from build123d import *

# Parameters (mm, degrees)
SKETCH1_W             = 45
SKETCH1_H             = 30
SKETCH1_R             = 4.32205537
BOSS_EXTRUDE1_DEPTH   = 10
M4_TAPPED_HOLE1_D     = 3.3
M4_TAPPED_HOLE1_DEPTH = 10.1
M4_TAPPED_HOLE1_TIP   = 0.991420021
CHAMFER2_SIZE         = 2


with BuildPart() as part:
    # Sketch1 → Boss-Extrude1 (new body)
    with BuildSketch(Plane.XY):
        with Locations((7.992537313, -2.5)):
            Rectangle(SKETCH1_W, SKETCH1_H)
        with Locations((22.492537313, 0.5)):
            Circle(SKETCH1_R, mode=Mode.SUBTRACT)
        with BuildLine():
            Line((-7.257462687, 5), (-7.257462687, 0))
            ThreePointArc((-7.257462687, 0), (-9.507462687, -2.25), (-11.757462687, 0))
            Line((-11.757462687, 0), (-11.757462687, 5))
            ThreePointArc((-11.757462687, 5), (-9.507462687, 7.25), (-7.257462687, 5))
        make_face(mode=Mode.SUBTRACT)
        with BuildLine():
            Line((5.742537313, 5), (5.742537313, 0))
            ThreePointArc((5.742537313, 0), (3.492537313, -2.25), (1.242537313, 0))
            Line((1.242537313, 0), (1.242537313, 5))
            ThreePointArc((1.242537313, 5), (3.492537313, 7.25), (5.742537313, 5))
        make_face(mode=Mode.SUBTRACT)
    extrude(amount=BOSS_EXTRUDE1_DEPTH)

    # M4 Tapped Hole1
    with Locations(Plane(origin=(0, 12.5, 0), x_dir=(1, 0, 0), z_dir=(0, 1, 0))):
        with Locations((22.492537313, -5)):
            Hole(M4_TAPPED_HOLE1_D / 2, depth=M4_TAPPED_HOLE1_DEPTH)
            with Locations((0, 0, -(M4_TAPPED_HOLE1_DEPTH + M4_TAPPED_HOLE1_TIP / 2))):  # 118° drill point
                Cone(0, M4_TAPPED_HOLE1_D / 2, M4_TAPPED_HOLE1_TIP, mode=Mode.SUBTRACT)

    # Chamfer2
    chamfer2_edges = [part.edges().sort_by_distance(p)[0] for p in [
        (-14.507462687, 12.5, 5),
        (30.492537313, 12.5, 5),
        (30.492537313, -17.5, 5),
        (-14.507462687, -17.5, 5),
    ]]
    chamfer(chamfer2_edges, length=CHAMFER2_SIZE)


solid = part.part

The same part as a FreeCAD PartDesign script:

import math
import FreeCAD as App
import Part
import Sketcher


def edges_at(feature, points):
    """Names of the edges that pass closest to the given points."""
    edges = feature.Shape.Edges
    near = lambda p: min(range(len(edges)), key=lambda i: edges[i].distToShape(Part.Vertex(*p))[0])
    return sorted({f"Edge{near(p) + 1}" for p in points})


def add_polygon(sketch, points):
    """Adds a closed chain of lines whose ends are joined by coincident constraints."""
    first, n = sketch.GeometryCount, len(points)
    for a, b in zip(points, points[1:] + points[:1]):
        sketch.addGeometry(Part.LineSegment(App.Vector(*a, 0), App.Vector(*b, 0)), False)
    for i in range(n):
        sketch.addConstraint(Sketcher.Constraint("Coincident", first + i, 2, first + (i + 1) % n, 1))

doc = App.newDocument("Part")
body = doc.addObject("PartDesign::Body", "Body")

# Sketch on XY plane
sketch1 = body.newObject("Sketcher::SketchObject", "Sketch")
sketch1.AttachmentSupport = (doc.getObject("XY_Plane"), [""])
sketch1.MapMode = "FlatFace"
add_polygon(sketch1, [(-14.5, 12.5), (-14.5, -17.5), (30.5, -17.5), (30.5, 12.5)])  # lines 0-3
sketch1.addGeometry(Part.Circle(App.Vector(22.5, 0.5, 0), App.Vector(0, 0, 1), 4.3), False)  # 4
sketch1.addGeometry(Part.ArcOfCircle(Part.Circle(App.Vector(-9.5, 5, 0), App.Vector(0, 0, 1), 2.2), math.radians(0), math.radians(180)), False)  # 5
sketch1.addGeometry(Part.LineSegment(App.Vector(-7.3, 5, 0), App.Vector(-7.3, 0, 0)), False)  # 6
sketch1.addGeometry(Part.ArcOfCircle(Part.Circle(App.Vector(-9.5, 0, 0), App.Vector(0, 0, 1), 2.2), math.radians(180), math.radians(360)), False)  # 7
sketch1.addGeometry(Part.LineSegment(App.Vector(-11.8, 0, 0), App.Vector(-11.8, 5, 0)), False)  # 8
sketch1.addGeometry(Part.ArcOfCircle(Part.Circle(App.Vector(3.5, 5, 0), App.Vector(0, 0, 1), 2.2), math.radians(0), math.radians(180)), False)  # 9
sketch1.addGeometry(Part.LineSegment(App.Vector(5.7, 5, 0), App.Vector(5.7, 0, 0)), False)  # 10
sketch1.addGeometry(Part.ArcOfCircle(Part.Circle(App.Vector(3.5, 0, 0), App.Vector(0, 0, 1), 2.2), math.radians(180), math.radians(360)), False)  # 11
sketch1.addGeometry(Part.LineSegment(App.Vector(1.2, 0, 0), App.Vector(1.2, 5, 0)), False)  # 12
sketch1.addConstraint(Sketcher.Constraint("Tangent", 5, 1, 6, 1))
sketch1.addConstraint(Sketcher.Constraint("Tangent", 6, 2, 7, 2))
sketch1.addConstraint(Sketcher.Constraint("Tangent", 7, 1, 8, 1))
sketch1.addConstraint(Sketcher.Constraint("Tangent", 8, 2, 5, 2))
sketch1.addConstraint(Sketcher.Constraint("Tangent", 9, 1, 10, 1))
sketch1.addConstraint(Sketcher.Constraint("Tangent", 10, 2, 11, 2))
sketch1.addConstraint(Sketcher.Constraint("Tangent", 11, 1, 12, 1))
sketch1.addConstraint(Sketcher.Constraint("Tangent", 12, 2, 9, 2))
sketch1.addConstraint(Sketcher.Constraint("Vertical", 0))
sketch1.addConstraint(Sketcher.Constraint("Horizontal", 1))
sketch1.addConstraint(Sketcher.Constraint("Vertical", 2))
sketch1.addConstraint(Sketcher.Constraint("Horizontal", 3))
sketch1.addConstraint(Sketcher.Constraint("Vertical", 6))
sketch1.addConstraint(Sketcher.Constraint("Vertical", 8))
sketch1.addConstraint(Sketcher.Constraint("Vertical", 10))
sketch1.addConstraint(Sketcher.Constraint("Vertical", 12))
sketch1.addConstraint(Sketcher.Constraint("Equal", 7, 9))
sketch1.addConstraint(Sketcher.Constraint("PointOnObject", 7, 3, -1))
sketch1.addConstraint(Sketcher.Constraint("PointOnObject", 11, 3, -1))
sketch1.addConstraint(Sketcher.Constraint("Horizontal", 5, 3, 9, 3))
sketch1.addConstraint(Sketcher.Constraint("DistanceX", 1, 1, 1, 2, 45.0))
sketch1.addConstraint(Sketcher.Constraint("DistanceY", 0, 2, 0, 1, 30.0))
sketch1.addConstraint(Sketcher.Constraint("DistanceY", 6, 2, 6, 1, 5.0))
sketch1.addConstraint(Sketcher.Constraint("Radius", 5, 2.25))
sketch1.addConstraint(Sketcher.Constraint("DistanceX", 5, 3, 4, 3, 32.0))
sketch1.addConstraint(Sketcher.Constraint("DistanceX", 5, 3, 9, 3, 13.0))
sketch1.addConstraint(Sketcher.Constraint("DistanceX", 0, 2, 7, 3, 5.0))
sketch1.addConstraint(Sketcher.Constraint("DistanceY", 0, 2, 4, 3, 18.0))
sketch1.addConstraint(Sketcher.Constraint("DistanceY", -1, 1, 4, 3, 0.5))
sketch1.addConstraint(Sketcher.Constraint("Diameter", 4, 8.644111))
sketch1.addConstraint(Sketcher.Constraint("DistanceX", -1, 1, 4, 3, 22.492537))
pad1 = body.newObject("PartDesign::Pad", "Pad")
pad1.Profile = sketch1
pad1.Length = 10

# Sketch on XZ plane
sketch2 = body.newObject("Sketcher::SketchObject", "Sketch001")
sketch2.AttachmentSupport = (doc.getObject("XZ_Plane"), [""])
sketch2.MapMode = "FlatFace"
sketch2.AttachmentOffset = App.Placement(App.Vector(0, 0, -12.5), App.Rotation())
sketch2.addGeometry(Part.Circle(App.Vector(22.5, 5, 0), App.Vector(0, 0, 1), 1.6), False)
sketch2.addConstraint(Sketcher.Constraint("Diameter", 0, 3.3))
sketch2.addConstraint(Sketcher.Constraint("DistanceY", -1, 1, 0, 3, 5.0))
sketch2.addConstraint(Sketcher.Constraint("DistanceX", -1, 1, 0, 3, 22.492537))
doc.recompute()
hole = body.newObject("PartDesign::Hole", "Hole")
hole.Profile = sketch2
hole.ThreadType = "None"
hole.Diameter = 3.3
hole.DepthType = "Dimension"
hole.Depth = 10.1
hole.DrillPoint = "Angled"
hole.DrillPointAngle = 118
hole.Reversed = True
doc.recompute()

chamfer = body.newObject("PartDesign::Chamfer", "Chamfer")
chamfer.Base = (hole, edges_at(hole, [
    (-14.507, 12.5, 5),
    (30.493, 12.5, 5),
    (30.493, -17.5, 5),
    (-14.507, -17.5, 5),
]))
chamfer.Size = 2

doc.recompute()
